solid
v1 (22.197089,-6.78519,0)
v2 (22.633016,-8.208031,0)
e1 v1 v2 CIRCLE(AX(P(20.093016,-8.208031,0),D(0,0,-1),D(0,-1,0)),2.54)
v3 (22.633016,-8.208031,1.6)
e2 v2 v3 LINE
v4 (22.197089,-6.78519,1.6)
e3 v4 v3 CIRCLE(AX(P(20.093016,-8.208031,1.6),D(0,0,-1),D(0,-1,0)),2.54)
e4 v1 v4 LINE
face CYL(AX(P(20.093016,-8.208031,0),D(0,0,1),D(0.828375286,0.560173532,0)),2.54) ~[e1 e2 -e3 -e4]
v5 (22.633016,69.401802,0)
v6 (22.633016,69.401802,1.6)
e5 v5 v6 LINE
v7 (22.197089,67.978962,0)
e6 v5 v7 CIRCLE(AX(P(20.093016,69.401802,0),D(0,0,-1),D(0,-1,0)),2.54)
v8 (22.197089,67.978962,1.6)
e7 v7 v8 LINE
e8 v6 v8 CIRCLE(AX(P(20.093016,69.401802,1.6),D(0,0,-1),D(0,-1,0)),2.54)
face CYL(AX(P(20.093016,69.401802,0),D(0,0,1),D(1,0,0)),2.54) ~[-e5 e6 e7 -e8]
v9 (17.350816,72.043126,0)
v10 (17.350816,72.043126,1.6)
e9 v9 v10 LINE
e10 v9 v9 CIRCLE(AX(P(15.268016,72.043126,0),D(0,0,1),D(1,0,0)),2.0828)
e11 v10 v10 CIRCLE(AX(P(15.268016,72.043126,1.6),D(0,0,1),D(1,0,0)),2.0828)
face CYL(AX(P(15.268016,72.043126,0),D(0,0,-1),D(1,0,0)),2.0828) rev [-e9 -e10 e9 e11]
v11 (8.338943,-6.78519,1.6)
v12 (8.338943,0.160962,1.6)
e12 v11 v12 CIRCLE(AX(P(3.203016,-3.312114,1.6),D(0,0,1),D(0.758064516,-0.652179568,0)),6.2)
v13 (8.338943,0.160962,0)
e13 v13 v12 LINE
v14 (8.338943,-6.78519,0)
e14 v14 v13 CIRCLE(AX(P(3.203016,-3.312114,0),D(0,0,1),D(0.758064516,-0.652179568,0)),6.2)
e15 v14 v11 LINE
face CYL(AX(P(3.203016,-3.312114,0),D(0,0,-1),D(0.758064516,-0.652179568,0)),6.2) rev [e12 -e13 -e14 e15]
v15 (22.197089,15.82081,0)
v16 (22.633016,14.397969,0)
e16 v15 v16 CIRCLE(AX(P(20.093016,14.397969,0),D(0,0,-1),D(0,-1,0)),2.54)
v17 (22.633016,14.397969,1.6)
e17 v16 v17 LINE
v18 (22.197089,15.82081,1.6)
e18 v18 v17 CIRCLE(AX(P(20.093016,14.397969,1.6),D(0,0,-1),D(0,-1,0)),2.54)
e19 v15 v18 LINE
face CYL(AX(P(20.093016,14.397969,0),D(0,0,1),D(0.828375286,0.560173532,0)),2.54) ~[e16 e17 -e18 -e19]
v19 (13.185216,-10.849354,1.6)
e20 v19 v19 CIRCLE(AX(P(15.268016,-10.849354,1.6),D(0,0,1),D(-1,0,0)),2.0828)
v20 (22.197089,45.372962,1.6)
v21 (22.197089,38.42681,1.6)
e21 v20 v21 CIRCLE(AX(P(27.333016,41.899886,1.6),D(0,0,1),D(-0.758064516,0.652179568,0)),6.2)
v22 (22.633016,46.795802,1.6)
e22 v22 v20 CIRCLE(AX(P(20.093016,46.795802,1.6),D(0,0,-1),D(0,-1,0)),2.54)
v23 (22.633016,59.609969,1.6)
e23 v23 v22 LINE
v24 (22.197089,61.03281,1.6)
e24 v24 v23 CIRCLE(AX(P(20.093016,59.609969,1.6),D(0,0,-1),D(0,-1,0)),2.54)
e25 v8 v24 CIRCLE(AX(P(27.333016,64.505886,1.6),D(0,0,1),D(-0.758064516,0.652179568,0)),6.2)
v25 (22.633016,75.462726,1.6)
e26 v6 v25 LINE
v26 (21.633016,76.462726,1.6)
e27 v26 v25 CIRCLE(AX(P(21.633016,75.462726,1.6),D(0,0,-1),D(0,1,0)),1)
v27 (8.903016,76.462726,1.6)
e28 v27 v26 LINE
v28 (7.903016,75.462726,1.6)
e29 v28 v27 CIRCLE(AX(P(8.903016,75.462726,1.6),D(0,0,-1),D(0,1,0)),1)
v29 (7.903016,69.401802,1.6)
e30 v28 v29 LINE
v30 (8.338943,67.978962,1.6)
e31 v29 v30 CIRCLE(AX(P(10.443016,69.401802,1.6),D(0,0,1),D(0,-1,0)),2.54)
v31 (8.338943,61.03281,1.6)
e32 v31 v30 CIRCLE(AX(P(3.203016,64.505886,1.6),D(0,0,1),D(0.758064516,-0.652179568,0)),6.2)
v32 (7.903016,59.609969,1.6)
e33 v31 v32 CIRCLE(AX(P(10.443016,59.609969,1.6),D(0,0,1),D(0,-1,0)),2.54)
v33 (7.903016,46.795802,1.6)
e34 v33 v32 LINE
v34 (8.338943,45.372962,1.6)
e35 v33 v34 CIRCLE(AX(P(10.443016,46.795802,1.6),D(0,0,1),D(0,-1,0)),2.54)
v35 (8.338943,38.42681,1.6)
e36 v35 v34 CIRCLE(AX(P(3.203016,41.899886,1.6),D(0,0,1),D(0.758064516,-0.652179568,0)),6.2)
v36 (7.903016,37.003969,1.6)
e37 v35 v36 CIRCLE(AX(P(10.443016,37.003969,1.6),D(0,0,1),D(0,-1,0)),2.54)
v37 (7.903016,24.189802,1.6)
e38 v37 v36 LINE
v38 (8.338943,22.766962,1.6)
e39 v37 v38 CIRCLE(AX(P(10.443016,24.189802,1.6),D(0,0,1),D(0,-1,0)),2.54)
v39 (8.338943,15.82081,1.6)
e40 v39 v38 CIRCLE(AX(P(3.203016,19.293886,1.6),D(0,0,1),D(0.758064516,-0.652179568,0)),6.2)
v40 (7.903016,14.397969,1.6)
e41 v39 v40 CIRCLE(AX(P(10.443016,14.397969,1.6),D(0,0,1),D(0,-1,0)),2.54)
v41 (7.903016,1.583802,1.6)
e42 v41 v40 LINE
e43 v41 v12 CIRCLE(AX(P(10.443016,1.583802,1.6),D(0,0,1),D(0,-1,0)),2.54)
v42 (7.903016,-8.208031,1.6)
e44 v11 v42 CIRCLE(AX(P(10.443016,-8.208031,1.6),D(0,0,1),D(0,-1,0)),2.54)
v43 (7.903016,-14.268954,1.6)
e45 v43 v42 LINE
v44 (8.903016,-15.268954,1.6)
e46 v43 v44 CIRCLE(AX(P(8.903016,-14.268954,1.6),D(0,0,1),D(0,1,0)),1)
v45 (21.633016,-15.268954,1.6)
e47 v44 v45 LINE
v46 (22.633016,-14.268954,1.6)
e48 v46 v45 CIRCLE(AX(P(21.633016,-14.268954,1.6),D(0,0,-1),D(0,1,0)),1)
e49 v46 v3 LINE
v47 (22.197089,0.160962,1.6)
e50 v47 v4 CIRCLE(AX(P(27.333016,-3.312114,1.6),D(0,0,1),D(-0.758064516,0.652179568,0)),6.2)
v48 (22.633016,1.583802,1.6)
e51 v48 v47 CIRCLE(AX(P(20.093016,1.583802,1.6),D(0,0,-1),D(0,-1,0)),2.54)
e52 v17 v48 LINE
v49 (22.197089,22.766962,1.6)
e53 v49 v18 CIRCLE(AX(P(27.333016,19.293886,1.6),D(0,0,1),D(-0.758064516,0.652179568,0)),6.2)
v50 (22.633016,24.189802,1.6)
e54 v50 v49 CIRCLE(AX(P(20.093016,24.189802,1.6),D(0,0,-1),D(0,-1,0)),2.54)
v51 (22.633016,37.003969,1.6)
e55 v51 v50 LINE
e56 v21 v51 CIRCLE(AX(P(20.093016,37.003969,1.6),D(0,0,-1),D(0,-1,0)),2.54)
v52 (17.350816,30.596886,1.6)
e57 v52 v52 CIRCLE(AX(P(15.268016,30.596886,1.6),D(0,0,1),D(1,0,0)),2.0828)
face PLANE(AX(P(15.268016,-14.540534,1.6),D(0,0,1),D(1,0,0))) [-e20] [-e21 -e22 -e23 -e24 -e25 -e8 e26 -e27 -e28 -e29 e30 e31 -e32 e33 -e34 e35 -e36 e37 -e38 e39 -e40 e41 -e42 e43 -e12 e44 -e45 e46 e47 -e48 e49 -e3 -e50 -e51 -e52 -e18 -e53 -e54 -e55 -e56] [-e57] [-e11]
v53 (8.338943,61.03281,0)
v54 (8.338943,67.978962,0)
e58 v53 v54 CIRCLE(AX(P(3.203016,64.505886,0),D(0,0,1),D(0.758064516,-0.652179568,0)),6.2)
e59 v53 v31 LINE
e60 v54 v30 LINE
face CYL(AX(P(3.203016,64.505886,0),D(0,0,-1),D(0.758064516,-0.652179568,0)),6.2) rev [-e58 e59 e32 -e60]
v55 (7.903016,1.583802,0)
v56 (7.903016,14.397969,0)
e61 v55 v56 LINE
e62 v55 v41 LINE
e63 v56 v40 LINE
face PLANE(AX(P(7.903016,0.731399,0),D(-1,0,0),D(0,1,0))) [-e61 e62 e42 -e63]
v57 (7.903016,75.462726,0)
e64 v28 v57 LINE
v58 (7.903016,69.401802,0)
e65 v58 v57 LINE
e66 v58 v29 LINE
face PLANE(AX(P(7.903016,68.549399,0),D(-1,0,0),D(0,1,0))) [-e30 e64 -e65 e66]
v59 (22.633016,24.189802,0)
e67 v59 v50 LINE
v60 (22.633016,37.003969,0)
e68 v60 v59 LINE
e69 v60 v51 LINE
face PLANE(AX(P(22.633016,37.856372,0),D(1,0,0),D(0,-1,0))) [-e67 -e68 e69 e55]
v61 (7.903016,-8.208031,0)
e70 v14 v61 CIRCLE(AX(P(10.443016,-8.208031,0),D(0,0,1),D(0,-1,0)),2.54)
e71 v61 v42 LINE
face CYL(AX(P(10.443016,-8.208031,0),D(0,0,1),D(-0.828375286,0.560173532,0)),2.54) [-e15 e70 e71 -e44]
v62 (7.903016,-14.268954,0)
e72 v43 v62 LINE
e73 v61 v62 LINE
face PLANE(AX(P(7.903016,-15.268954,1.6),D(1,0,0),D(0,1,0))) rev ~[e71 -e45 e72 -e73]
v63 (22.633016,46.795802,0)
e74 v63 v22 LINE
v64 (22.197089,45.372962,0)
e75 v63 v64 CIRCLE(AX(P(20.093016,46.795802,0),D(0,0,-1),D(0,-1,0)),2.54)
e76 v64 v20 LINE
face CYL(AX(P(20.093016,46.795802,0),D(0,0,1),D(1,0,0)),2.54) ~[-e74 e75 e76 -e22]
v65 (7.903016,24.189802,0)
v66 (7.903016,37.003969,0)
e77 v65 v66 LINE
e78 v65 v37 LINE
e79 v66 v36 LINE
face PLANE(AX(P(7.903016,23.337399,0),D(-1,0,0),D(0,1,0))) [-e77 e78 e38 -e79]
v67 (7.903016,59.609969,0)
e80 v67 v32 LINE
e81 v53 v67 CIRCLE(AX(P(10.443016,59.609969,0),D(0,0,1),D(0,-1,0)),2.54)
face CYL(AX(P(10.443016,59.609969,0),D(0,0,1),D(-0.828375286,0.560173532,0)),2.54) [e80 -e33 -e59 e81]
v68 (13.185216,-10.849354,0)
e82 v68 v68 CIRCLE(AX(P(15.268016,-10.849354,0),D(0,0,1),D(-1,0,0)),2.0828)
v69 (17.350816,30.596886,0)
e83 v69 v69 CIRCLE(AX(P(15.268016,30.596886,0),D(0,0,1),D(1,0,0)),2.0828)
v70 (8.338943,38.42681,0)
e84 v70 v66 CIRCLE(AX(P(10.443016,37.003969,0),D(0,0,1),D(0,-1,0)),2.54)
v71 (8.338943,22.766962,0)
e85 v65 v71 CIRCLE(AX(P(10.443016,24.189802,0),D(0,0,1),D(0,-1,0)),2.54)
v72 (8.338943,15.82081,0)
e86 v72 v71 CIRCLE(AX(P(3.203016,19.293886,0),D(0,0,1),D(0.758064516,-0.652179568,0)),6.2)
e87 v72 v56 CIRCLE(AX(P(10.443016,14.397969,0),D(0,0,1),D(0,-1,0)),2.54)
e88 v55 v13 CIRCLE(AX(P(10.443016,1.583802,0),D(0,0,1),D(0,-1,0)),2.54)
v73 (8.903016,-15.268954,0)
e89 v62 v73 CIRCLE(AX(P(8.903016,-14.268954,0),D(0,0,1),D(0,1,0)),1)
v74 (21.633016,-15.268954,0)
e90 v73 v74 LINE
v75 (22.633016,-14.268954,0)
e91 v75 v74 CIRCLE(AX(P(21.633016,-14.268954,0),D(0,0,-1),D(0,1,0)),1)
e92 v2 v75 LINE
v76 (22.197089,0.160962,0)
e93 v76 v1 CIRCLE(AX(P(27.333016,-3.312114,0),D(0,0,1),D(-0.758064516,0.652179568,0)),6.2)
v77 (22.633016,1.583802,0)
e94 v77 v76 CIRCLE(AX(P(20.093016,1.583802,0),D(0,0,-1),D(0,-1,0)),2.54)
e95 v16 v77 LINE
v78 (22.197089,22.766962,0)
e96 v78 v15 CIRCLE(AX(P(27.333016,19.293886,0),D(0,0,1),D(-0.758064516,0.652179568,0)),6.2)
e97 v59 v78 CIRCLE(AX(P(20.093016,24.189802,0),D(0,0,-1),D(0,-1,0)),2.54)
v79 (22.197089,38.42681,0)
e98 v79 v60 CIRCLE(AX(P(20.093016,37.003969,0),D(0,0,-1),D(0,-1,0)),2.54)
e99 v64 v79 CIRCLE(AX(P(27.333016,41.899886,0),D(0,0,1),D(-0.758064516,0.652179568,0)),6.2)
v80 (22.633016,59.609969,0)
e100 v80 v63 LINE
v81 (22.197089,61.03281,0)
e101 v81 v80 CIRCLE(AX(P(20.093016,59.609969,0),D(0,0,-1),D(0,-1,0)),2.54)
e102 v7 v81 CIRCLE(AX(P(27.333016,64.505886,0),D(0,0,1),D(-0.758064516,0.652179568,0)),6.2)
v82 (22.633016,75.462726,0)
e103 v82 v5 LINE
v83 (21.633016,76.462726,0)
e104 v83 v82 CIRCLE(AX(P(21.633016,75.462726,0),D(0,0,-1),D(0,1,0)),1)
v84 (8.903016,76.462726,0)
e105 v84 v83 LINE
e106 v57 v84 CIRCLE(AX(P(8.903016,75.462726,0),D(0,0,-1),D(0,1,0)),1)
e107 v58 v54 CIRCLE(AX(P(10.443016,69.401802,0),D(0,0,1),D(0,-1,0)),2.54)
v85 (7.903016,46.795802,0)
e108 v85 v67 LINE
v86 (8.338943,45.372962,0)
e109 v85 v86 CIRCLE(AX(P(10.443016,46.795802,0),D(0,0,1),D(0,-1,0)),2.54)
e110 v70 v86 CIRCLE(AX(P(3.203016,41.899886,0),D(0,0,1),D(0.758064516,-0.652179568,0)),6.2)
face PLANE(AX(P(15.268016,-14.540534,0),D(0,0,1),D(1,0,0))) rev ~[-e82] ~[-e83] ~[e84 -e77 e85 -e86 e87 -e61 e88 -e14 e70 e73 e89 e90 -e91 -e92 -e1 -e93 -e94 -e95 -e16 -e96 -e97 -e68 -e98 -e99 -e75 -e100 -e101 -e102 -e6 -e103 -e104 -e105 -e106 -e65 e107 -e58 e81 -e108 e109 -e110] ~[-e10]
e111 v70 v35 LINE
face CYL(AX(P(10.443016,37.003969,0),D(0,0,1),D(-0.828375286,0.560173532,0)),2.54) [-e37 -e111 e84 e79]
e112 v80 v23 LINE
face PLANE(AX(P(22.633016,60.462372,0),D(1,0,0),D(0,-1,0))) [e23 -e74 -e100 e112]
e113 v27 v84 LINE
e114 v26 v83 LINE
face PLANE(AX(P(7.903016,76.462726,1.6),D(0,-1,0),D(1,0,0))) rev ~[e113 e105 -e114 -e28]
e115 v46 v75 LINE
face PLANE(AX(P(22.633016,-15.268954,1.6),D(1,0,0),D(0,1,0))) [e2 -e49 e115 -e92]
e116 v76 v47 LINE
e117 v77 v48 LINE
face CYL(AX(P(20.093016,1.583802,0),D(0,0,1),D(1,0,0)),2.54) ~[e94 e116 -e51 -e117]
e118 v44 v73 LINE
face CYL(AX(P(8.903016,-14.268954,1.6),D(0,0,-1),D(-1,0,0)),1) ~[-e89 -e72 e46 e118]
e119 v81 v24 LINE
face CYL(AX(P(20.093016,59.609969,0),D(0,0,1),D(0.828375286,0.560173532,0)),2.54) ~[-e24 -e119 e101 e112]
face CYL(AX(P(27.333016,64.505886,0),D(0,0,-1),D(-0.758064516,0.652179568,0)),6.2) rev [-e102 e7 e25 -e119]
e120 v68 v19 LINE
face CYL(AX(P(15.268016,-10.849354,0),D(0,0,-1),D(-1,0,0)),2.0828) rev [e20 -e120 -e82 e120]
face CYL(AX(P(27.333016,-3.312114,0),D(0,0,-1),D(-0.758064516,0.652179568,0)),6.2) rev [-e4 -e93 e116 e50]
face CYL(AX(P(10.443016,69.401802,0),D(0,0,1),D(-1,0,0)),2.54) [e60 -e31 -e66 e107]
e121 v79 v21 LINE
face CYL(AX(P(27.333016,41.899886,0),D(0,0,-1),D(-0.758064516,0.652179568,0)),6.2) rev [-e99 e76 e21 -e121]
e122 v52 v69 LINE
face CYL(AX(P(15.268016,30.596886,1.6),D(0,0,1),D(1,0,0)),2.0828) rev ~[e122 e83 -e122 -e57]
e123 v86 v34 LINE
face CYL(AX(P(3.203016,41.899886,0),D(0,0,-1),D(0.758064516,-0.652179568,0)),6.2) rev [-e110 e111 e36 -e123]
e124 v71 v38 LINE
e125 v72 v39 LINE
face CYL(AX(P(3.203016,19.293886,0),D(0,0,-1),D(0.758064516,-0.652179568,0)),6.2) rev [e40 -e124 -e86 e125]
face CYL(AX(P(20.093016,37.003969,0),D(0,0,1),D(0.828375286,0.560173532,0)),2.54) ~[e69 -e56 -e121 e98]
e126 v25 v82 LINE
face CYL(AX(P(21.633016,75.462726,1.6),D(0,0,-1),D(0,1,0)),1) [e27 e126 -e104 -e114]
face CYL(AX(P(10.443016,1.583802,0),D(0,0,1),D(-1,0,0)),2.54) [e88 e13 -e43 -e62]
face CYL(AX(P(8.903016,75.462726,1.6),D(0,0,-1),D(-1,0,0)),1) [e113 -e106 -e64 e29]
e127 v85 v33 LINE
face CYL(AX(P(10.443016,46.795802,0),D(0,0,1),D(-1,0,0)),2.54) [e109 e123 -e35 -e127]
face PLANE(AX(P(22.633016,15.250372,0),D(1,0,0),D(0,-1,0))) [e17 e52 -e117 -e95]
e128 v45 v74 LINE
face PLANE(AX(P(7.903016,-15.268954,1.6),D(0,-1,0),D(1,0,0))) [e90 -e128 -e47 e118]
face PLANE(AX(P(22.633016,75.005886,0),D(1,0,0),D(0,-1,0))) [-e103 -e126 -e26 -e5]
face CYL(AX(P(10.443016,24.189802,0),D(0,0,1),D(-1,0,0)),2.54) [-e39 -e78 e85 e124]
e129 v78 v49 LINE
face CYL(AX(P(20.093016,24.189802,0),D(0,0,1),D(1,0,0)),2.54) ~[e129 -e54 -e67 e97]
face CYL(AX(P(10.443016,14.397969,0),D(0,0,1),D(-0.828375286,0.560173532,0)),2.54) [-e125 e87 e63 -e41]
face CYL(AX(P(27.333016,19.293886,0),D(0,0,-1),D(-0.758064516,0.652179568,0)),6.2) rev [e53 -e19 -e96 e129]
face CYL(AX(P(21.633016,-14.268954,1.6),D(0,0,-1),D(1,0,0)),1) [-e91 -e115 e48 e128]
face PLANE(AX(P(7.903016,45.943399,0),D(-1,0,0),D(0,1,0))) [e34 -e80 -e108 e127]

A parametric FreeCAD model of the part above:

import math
import FreeCAD as App
import Part
import Sketcher
from FreeCAD import Vector
Q = App.Units.Quantity


def edges_at(feature, points):
    """Names of the edges that pass closest to the given points."""
    edges = feature.Shape.Edges
    near = lambda p: min(range(len(edges)), key=lambda i: edges[i].distToShape(Part.Vertex(*p))[0])
    return sorted({f"Edge{near(p) + 1}" for p in points})


def add_polygon(sketch, points):
    """Adds a closed chain of lines whose ends are joined by coincident constraints."""
    first, n = sketch.GeometryCount, len(points)
    for a, b in zip(points, points[1:] + points[:1]):
        sketch.addGeometry(Part.LineSegment(App.Vector(*a, 0), App.Vector(*b, 0)), False)
    for i in range(n):
        sketch.addConstraint(Sketcher.Constraint("Coincident", first + i, 2, first + (i + 1) % n, 1))

doc = App.newDocument("Part")
body = doc.addObject("PartDesign::Body", "Body")

# Sketch on XY plane
sketch1 = doc.addObject("Sketcher::SketchObject", "Sketch")
body.addObject(sketch1)
sketch1.AttachmentSupport = (doc.XY_Plane, [""])
sketch1.MapMode = "FlatFace"
sketch1.addGeometry([
    Part.LineSegment(Vector(22.6, 75, 0), Vector(7.9, 75, 0)),  # 0
    Part.LineSegment(Vector(7.9, 75, 0), Vector(7.9, 68.5, 0)),  # 1
    Part.ArcOfCircle(Part.Circle(Vector(3.2, 64.5, 0), Vector(0, 0, 1), 6.2), math.radians(-41), math.radians(41)),  # 2
    Part.LineSegment(Vector(7.9, 60.5, 0), Vector(7.9, 45.9, 0)),  # 3
    Part.ArcOfCircle(Part.Circle(Vector(3.2, 41.9, 0), Vector(0, 0, 1), 6.2), math.radians(-41), math.radians(41)),  # 4
    Part.LineSegment(Vector(7.9, 37.9, 0), Vector(7.9, 23.3, 0)),  # 5
    Part.ArcOfCircle(Part.Circle(Vector(3.2, 19.3, 0), Vector(0, 0, 1), 6.2), math.radians(-41), math.radians(41)),  # 6
    Part.LineSegment(Vector(7.9, 15.3, 0), Vector(7.9, 0.7, 0)),  # 7
    Part.ArcOfCircle(Part.Circle(Vector(3.2, -3.3, 0), Vector(0, 0, 1), 6.2), math.radians(-41), math.radians(41)),  # 8
    Part.LineSegment(Vector(7.9, -7.4, 0), Vector(7.9, -13.8, 0)),  # 9
    Part.LineSegment(Vector(7.9, -13.8, 0), Vector(22.6, -13.8, 0)),  # 10
    Part.LineSegment(Vector(22.6, -13.8, 0), Vector(22.6, -7.4, 0)),  # 11
    Part.ArcOfCircle(Part.Circle(Vector(27.3, -3.3, 0), Vector(0, 0, 1), 6.2), math.radians(139), math.radians(221)),  # 12
    Part.LineSegment(Vector(22.6, 0.7, 0), Vector(22.6, 15.3, 0)),  # 13
    Part.ArcOfCircle(Part.Circle(Vector(27.3, 19.3, 0), Vector(0, 0, 1), 6.2), math.radians(139), math.radians(221)),  # 14
    Part.LineSegment(Vector(22.6, 23.3, 0), Vector(22.6, 37.9, 0)),  # 15
    Part.ArcOfCircle(Part.Circle(Vector(27.3, 41.9, 0), Vector(0, 0, 1), 6.2), math.radians(139), math.radians(221)),  # 16
    Part.LineSegment(Vector(22.6, 45.9, 0), Vector(22.6, 60.5, 0)),  # 17
    Part.ArcOfCircle(Part.Circle(Vector(27.3, 64.5, 0), Vector(0, 0, 1), 6.2), math.radians(139), math.radians(221)),  # 18
    Part.LineSegment(Vector(22.6, 68.5, 0), Vector(22.6, 75, 0)),  # 19
    Part.Circle(Vector(15.3, -10.8, 0), Vector(0, 0, 1), 2.1),  # 20
    Part.Circle(Vector(15.3, 72, 0), Vector(0, 0, 1), 2.1),  # 21
], False)
sketch1.addConstraint([
    Sketcher.Constraint("Coincident", 0, 2, 1, 1),
    Sketcher.Constraint("Coincident", 1, 2, 2, 2),
    Sketcher.Constraint("Coincident", 2, 1, 3, 1),
    Sketcher.Constraint("Coincident", 3, 2, 4, 2),
    Sketcher.Constraint("Coincident", 4, 1, 5, 1),
    Sketcher.Constraint("Coincident", 5, 2, 6, 2),
    Sketcher.Constraint("Coincident", 6, 1, 7, 1),
    Sketcher.Constraint("Coincident", 7, 2, 8, 2),
    Sketcher.Constraint("Coincident", 8, 1, 9, 1),
    Sketcher.Constraint("Coincident", 9, 2, 10, 1),
    Sketcher.Constraint("Coincident", 10, 2, 11, 1),
    Sketcher.Constraint("Coincident", 11, 2, 12, 2),
    Sketcher.Constraint("Coincident", 12, 1, 13, 1),
    Sketcher.Constraint("Coincident", 13, 2, 14, 2),
    Sketcher.Constraint("Coincident", 14, 1, 15, 1),
    Sketcher.Constraint("Coincident", 15, 2, 16, 2),
    Sketcher.Constraint("Coincident", 16, 1, 17, 1),
    Sketcher.Constraint("Coincident", 17, 2, 18, 2),
    Sketcher.Constraint("Coincident", 18, 1, 19, 1),
    Sketcher.Constraint("Coincident", 19, 2, 0, 1),
    Sketcher.Constraint("Horizontal", 0),
    Sketcher.Constraint("Vertical", 1),
    Sketcher.Constraint("Vertical", 3),
    Sketcher.Constraint("Vertical", 5),
    Sketcher.Constraint("Vertical", 7),
    Sketcher.Constraint("Vertical", 9),
    Sketcher.Constraint("Horizontal", 10),
    Sketcher.Constraint("Vertical", 11),
    Sketcher.Constraint("Vertical", 13),
    Sketcher.Constraint("Vertical", 15),
    Sketcher.Constraint("Vertical", 17),
    Sketcher.Constraint("Vertical", 19),
    Sketcher.Constraint("Equal", 2, 4),
    Sketcher.Constraint("Equal", 4, 6),
    Sketcher.Constraint("Equal", 6, 8),
    Sketcher.Constraint("Equal", 8, 12),
    Sketcher.Constraint("Equal", 12, 14),
    Sketcher.Constraint("Equal", 14, 16),
    Sketcher.Constraint("Equal", 16, 18),
    Sketcher.Constraint("Equal", 20, 21),
    Sketcher.Constraint("Horizontal", 8, 3, 12, 3),
    Sketcher.Constraint("Horizontal", 6, 3, 14, 3),
    Sketcher.Constraint("Horizontal", 4, 3, 16, 3),
    Sketcher.Constraint("Horizontal", 2, 3, 18, 3),
    Sketcher.Constraint("Horizontal", 8, 1, 11, 2),
    Sketcher.Constraint("Horizontal", 7, 2, 12, 1),
    Sketcher.Constraint("Horizontal", 6, 1, 13, 2),
    Sketcher.Constraint("Horizontal", 5, 2, 14, 1),
    Sketcher.Constraint("Horizontal", 4, 1, 15, 2),
    Sketcher.Constraint("Horizontal", 3, 2, 16, 1),
    Sketcher.Constraint("Horizontal", 2, 1, 17, 2),
    Sketcher.Constraint("Horizontal", 1, 2, 18, 1),
    Sketcher.Constraint("Vertical", 2, 3, 4, 3),
    Sketcher.Constraint("Vertical", 4, 3, 6, 3),
    Sketcher.Constraint("Vertical", 6, 3, 8, 3),
    Sketcher.Constraint("Vertical", 20, 3, 21, 3),
    Sketcher.Constraint("Vertical", 1, 2, 2, 1),
    Sketcher.Constraint("Vertical", 3, 2, 4, 1),
    Sketcher.Constraint("Vertical", 5, 2, 6, 1),
    Sketcher.Constraint("Vertical", 7, 2, 8, 1),
    Sketcher.Constraint("Equal", 3, 5),
    Sketcher.Constraint("Equal", 5, 7),
    Sketcher.Constraint("Equal", 1, 9),
    Sketcher.Constraint("Radius", 2, Q("6.2 mm")),
    Sketcher.Constraint("Diameter", 20, Q("4.1656 mm")),
    Sketcher.Constraint("DistanceX", 0, 2, 0, 1, Q("14.73 mm")),
    Sketcher.Constraint("DistanceX", 2, 3, 0, 2, Q("4.7 mm")),
    Sketcher.Constraint("DistanceY", 2, 3, 0, 2, Q("10.5 mm")),
    Sketcher.Constraint("DistanceY", 4, 3, 2, 3, Q("22.606 mm")),
    Sketcher.Constraint("DistanceX", 20, 3, 12, 3, Q("12.065 mm")),
    Sketcher.Constraint("DistanceY", -1, 1, 1, 2, Q("68.549399 mm")),
    Sketcher.Constraint("DistanceY", 20, 3, 12, 3, Q("7.53724 mm")),
    Sketcher.Constraint("DistanceY", 18, 3, 21, 3, Q("7.53724 mm")),
    Sketcher.Constraint("DistanceX", -1, 1, 2, 3, Q("3.203016 mm")),
])
pad1 = doc.addObject("PartDesign::Pad", "Pad")
body.addObject(pad1)
pad1.Profile = sketch1
pad1.Length = 1.6
doc.recompute()

fillet = doc.addObject("PartDesign::Fillet", "Fillet")
body.addObject(fillet)
fillet.Base = (pad1, edges_at(pad1, [
    (22.633, 68.549, 0.8),
    (22.633, 60.462, 0.8),
    (22.633, 45.943, 0.8),
    (22.633, 37.856, 0.8),
    (22.633, 23.337, 0.8),
    (22.633, 15.25, 0.8),
    (22.633, 0.731, 0.8),
    (22.633, -7.356, 0.8),
    (7.903, -7.356, 0.8),
    (7.903, 0.731, 0.8),
    (7.903, 15.25, 0.8),
    (7.903, 23.337, 0.8),
    (7.903, 37.856, 0.8),
    (7.903, 45.943, 0.8),
    (7.903, 60.462, 0.8),
    (7.903, 68.549, 0.8),
]))
fillet.Radius = 2.54

# Sketch on XY plane
sketch2 = doc.addObject("Sketcher::SketchObject", "Sketch001")
body.addObject(sketch2)
sketch2.AttachmentSupport = (doc.XY_Plane, [""])
sketch2.MapMode = "FlatFace"
sketch2.AttachmentOffset = App.Placement(Vector(0, 0, 1.6), App.Rotation())
sketch2.addGeometry(Part.Circle(Vector(15.3, 30.6, 0), Vector(0, 0, 1), 2.1), False)
sketch2.addConstraint([
    Sketcher.Constraint("Diameter", 0, Q("4.1656 mm")),
    Sketcher.Constraint("DistanceX", -1, 1, 0, 3, Q("15.268016 mm")),
    Sketcher.Constraint("DistanceY", -1, 1, 0, 3, Q("30.596886 mm")),
])
pocket1 = doc.addObject("PartDesign::Pocket", "Pocket")
body.addObject(pocket1)
pocket1.Profile = sketch2
pocket1.Type = "ThroughAll"

# Sketch on XY plane
sketch3 = doc.addObject("Sketcher::SketchObject", "Sketch002")
body.addObject(sketch3)
sketch3.AttachmentSupport = (doc.XY_Plane, [""])
sketch3.MapMode = "FlatFace"
sketch3.AttachmentOffset = App.Placement(Vector(0, 0, 1.6), App.Rotation())
add_polygon(sketch3, [(7.9, -13.8), (7.9, -15.3), (22.6, -15.3), (22.6, -13.8)])  # lines 0-3
add_polygon(sketch3, [(7.9, 76.5), (7.9, 75), (22.6, 75), (22.6, 76.5)])  # lines 4-7
sketch3.addConstraint([
    Sketcher.Constraint("Vertical", 0),
    Sketcher.Constraint("Horizontal", 1),
    Sketcher.Constraint("Vertical", 2),
    Sketcher.Constraint("Horizontal", 3),
    Sketcher.Constraint("Vertical", 4),
    Sketcher.Constraint("Horizontal", 5),
    Sketcher.Constraint("Vertical", 6),
    Sketcher.Constraint("Horizontal", 7),
    Sketcher.Constraint("Vertical", 3, 2, 4, 2),
    Sketcher.Constraint("Vertical", 2, 2, 5, 2),
    Sketcher.Constraint("Equal", 2, 4),
    Sketcher.Constraint("DistanceX", 1, 1, 1, 2, Q("14.73 mm")),
    Sketcher.Constraint("DistanceY", 3, 2, 4, 2, Q("88.818 mm")),
    Sketcher.Constraint("DistanceY", 0, 2, 0, 1, Q("1.45684 mm")),
    Sketcher.Constraint("DistanceX", -1, 1, 0, 2, Q("7.903016 mm")),
    Sketcher.Constraint("DistanceY", 0, 2, -1, 1, Q("15.268954 mm")),
])
pad2 = doc.addObject("PartDesign::Pad", "Pad001")
body.addObject(pad2)
pad2.Profile = sketch3
pad2.Length = 1.6
pad2.Reversed = True
doc.recompute()

fillet2 = doc.addObject("PartDesign::Fillet", "Fillet001")
body.addObject(fillet2)
fillet2.Base = (pad2, edges_at(pad2, [
    (7.903, 76.463, 0.8),
    (22.633, 76.463, 0.8),
    (7.903, -15.269, 0.8),
    (22.633, -15.269, 0.8),
]))
fillet2.Radius = 1

doc.recompute()
